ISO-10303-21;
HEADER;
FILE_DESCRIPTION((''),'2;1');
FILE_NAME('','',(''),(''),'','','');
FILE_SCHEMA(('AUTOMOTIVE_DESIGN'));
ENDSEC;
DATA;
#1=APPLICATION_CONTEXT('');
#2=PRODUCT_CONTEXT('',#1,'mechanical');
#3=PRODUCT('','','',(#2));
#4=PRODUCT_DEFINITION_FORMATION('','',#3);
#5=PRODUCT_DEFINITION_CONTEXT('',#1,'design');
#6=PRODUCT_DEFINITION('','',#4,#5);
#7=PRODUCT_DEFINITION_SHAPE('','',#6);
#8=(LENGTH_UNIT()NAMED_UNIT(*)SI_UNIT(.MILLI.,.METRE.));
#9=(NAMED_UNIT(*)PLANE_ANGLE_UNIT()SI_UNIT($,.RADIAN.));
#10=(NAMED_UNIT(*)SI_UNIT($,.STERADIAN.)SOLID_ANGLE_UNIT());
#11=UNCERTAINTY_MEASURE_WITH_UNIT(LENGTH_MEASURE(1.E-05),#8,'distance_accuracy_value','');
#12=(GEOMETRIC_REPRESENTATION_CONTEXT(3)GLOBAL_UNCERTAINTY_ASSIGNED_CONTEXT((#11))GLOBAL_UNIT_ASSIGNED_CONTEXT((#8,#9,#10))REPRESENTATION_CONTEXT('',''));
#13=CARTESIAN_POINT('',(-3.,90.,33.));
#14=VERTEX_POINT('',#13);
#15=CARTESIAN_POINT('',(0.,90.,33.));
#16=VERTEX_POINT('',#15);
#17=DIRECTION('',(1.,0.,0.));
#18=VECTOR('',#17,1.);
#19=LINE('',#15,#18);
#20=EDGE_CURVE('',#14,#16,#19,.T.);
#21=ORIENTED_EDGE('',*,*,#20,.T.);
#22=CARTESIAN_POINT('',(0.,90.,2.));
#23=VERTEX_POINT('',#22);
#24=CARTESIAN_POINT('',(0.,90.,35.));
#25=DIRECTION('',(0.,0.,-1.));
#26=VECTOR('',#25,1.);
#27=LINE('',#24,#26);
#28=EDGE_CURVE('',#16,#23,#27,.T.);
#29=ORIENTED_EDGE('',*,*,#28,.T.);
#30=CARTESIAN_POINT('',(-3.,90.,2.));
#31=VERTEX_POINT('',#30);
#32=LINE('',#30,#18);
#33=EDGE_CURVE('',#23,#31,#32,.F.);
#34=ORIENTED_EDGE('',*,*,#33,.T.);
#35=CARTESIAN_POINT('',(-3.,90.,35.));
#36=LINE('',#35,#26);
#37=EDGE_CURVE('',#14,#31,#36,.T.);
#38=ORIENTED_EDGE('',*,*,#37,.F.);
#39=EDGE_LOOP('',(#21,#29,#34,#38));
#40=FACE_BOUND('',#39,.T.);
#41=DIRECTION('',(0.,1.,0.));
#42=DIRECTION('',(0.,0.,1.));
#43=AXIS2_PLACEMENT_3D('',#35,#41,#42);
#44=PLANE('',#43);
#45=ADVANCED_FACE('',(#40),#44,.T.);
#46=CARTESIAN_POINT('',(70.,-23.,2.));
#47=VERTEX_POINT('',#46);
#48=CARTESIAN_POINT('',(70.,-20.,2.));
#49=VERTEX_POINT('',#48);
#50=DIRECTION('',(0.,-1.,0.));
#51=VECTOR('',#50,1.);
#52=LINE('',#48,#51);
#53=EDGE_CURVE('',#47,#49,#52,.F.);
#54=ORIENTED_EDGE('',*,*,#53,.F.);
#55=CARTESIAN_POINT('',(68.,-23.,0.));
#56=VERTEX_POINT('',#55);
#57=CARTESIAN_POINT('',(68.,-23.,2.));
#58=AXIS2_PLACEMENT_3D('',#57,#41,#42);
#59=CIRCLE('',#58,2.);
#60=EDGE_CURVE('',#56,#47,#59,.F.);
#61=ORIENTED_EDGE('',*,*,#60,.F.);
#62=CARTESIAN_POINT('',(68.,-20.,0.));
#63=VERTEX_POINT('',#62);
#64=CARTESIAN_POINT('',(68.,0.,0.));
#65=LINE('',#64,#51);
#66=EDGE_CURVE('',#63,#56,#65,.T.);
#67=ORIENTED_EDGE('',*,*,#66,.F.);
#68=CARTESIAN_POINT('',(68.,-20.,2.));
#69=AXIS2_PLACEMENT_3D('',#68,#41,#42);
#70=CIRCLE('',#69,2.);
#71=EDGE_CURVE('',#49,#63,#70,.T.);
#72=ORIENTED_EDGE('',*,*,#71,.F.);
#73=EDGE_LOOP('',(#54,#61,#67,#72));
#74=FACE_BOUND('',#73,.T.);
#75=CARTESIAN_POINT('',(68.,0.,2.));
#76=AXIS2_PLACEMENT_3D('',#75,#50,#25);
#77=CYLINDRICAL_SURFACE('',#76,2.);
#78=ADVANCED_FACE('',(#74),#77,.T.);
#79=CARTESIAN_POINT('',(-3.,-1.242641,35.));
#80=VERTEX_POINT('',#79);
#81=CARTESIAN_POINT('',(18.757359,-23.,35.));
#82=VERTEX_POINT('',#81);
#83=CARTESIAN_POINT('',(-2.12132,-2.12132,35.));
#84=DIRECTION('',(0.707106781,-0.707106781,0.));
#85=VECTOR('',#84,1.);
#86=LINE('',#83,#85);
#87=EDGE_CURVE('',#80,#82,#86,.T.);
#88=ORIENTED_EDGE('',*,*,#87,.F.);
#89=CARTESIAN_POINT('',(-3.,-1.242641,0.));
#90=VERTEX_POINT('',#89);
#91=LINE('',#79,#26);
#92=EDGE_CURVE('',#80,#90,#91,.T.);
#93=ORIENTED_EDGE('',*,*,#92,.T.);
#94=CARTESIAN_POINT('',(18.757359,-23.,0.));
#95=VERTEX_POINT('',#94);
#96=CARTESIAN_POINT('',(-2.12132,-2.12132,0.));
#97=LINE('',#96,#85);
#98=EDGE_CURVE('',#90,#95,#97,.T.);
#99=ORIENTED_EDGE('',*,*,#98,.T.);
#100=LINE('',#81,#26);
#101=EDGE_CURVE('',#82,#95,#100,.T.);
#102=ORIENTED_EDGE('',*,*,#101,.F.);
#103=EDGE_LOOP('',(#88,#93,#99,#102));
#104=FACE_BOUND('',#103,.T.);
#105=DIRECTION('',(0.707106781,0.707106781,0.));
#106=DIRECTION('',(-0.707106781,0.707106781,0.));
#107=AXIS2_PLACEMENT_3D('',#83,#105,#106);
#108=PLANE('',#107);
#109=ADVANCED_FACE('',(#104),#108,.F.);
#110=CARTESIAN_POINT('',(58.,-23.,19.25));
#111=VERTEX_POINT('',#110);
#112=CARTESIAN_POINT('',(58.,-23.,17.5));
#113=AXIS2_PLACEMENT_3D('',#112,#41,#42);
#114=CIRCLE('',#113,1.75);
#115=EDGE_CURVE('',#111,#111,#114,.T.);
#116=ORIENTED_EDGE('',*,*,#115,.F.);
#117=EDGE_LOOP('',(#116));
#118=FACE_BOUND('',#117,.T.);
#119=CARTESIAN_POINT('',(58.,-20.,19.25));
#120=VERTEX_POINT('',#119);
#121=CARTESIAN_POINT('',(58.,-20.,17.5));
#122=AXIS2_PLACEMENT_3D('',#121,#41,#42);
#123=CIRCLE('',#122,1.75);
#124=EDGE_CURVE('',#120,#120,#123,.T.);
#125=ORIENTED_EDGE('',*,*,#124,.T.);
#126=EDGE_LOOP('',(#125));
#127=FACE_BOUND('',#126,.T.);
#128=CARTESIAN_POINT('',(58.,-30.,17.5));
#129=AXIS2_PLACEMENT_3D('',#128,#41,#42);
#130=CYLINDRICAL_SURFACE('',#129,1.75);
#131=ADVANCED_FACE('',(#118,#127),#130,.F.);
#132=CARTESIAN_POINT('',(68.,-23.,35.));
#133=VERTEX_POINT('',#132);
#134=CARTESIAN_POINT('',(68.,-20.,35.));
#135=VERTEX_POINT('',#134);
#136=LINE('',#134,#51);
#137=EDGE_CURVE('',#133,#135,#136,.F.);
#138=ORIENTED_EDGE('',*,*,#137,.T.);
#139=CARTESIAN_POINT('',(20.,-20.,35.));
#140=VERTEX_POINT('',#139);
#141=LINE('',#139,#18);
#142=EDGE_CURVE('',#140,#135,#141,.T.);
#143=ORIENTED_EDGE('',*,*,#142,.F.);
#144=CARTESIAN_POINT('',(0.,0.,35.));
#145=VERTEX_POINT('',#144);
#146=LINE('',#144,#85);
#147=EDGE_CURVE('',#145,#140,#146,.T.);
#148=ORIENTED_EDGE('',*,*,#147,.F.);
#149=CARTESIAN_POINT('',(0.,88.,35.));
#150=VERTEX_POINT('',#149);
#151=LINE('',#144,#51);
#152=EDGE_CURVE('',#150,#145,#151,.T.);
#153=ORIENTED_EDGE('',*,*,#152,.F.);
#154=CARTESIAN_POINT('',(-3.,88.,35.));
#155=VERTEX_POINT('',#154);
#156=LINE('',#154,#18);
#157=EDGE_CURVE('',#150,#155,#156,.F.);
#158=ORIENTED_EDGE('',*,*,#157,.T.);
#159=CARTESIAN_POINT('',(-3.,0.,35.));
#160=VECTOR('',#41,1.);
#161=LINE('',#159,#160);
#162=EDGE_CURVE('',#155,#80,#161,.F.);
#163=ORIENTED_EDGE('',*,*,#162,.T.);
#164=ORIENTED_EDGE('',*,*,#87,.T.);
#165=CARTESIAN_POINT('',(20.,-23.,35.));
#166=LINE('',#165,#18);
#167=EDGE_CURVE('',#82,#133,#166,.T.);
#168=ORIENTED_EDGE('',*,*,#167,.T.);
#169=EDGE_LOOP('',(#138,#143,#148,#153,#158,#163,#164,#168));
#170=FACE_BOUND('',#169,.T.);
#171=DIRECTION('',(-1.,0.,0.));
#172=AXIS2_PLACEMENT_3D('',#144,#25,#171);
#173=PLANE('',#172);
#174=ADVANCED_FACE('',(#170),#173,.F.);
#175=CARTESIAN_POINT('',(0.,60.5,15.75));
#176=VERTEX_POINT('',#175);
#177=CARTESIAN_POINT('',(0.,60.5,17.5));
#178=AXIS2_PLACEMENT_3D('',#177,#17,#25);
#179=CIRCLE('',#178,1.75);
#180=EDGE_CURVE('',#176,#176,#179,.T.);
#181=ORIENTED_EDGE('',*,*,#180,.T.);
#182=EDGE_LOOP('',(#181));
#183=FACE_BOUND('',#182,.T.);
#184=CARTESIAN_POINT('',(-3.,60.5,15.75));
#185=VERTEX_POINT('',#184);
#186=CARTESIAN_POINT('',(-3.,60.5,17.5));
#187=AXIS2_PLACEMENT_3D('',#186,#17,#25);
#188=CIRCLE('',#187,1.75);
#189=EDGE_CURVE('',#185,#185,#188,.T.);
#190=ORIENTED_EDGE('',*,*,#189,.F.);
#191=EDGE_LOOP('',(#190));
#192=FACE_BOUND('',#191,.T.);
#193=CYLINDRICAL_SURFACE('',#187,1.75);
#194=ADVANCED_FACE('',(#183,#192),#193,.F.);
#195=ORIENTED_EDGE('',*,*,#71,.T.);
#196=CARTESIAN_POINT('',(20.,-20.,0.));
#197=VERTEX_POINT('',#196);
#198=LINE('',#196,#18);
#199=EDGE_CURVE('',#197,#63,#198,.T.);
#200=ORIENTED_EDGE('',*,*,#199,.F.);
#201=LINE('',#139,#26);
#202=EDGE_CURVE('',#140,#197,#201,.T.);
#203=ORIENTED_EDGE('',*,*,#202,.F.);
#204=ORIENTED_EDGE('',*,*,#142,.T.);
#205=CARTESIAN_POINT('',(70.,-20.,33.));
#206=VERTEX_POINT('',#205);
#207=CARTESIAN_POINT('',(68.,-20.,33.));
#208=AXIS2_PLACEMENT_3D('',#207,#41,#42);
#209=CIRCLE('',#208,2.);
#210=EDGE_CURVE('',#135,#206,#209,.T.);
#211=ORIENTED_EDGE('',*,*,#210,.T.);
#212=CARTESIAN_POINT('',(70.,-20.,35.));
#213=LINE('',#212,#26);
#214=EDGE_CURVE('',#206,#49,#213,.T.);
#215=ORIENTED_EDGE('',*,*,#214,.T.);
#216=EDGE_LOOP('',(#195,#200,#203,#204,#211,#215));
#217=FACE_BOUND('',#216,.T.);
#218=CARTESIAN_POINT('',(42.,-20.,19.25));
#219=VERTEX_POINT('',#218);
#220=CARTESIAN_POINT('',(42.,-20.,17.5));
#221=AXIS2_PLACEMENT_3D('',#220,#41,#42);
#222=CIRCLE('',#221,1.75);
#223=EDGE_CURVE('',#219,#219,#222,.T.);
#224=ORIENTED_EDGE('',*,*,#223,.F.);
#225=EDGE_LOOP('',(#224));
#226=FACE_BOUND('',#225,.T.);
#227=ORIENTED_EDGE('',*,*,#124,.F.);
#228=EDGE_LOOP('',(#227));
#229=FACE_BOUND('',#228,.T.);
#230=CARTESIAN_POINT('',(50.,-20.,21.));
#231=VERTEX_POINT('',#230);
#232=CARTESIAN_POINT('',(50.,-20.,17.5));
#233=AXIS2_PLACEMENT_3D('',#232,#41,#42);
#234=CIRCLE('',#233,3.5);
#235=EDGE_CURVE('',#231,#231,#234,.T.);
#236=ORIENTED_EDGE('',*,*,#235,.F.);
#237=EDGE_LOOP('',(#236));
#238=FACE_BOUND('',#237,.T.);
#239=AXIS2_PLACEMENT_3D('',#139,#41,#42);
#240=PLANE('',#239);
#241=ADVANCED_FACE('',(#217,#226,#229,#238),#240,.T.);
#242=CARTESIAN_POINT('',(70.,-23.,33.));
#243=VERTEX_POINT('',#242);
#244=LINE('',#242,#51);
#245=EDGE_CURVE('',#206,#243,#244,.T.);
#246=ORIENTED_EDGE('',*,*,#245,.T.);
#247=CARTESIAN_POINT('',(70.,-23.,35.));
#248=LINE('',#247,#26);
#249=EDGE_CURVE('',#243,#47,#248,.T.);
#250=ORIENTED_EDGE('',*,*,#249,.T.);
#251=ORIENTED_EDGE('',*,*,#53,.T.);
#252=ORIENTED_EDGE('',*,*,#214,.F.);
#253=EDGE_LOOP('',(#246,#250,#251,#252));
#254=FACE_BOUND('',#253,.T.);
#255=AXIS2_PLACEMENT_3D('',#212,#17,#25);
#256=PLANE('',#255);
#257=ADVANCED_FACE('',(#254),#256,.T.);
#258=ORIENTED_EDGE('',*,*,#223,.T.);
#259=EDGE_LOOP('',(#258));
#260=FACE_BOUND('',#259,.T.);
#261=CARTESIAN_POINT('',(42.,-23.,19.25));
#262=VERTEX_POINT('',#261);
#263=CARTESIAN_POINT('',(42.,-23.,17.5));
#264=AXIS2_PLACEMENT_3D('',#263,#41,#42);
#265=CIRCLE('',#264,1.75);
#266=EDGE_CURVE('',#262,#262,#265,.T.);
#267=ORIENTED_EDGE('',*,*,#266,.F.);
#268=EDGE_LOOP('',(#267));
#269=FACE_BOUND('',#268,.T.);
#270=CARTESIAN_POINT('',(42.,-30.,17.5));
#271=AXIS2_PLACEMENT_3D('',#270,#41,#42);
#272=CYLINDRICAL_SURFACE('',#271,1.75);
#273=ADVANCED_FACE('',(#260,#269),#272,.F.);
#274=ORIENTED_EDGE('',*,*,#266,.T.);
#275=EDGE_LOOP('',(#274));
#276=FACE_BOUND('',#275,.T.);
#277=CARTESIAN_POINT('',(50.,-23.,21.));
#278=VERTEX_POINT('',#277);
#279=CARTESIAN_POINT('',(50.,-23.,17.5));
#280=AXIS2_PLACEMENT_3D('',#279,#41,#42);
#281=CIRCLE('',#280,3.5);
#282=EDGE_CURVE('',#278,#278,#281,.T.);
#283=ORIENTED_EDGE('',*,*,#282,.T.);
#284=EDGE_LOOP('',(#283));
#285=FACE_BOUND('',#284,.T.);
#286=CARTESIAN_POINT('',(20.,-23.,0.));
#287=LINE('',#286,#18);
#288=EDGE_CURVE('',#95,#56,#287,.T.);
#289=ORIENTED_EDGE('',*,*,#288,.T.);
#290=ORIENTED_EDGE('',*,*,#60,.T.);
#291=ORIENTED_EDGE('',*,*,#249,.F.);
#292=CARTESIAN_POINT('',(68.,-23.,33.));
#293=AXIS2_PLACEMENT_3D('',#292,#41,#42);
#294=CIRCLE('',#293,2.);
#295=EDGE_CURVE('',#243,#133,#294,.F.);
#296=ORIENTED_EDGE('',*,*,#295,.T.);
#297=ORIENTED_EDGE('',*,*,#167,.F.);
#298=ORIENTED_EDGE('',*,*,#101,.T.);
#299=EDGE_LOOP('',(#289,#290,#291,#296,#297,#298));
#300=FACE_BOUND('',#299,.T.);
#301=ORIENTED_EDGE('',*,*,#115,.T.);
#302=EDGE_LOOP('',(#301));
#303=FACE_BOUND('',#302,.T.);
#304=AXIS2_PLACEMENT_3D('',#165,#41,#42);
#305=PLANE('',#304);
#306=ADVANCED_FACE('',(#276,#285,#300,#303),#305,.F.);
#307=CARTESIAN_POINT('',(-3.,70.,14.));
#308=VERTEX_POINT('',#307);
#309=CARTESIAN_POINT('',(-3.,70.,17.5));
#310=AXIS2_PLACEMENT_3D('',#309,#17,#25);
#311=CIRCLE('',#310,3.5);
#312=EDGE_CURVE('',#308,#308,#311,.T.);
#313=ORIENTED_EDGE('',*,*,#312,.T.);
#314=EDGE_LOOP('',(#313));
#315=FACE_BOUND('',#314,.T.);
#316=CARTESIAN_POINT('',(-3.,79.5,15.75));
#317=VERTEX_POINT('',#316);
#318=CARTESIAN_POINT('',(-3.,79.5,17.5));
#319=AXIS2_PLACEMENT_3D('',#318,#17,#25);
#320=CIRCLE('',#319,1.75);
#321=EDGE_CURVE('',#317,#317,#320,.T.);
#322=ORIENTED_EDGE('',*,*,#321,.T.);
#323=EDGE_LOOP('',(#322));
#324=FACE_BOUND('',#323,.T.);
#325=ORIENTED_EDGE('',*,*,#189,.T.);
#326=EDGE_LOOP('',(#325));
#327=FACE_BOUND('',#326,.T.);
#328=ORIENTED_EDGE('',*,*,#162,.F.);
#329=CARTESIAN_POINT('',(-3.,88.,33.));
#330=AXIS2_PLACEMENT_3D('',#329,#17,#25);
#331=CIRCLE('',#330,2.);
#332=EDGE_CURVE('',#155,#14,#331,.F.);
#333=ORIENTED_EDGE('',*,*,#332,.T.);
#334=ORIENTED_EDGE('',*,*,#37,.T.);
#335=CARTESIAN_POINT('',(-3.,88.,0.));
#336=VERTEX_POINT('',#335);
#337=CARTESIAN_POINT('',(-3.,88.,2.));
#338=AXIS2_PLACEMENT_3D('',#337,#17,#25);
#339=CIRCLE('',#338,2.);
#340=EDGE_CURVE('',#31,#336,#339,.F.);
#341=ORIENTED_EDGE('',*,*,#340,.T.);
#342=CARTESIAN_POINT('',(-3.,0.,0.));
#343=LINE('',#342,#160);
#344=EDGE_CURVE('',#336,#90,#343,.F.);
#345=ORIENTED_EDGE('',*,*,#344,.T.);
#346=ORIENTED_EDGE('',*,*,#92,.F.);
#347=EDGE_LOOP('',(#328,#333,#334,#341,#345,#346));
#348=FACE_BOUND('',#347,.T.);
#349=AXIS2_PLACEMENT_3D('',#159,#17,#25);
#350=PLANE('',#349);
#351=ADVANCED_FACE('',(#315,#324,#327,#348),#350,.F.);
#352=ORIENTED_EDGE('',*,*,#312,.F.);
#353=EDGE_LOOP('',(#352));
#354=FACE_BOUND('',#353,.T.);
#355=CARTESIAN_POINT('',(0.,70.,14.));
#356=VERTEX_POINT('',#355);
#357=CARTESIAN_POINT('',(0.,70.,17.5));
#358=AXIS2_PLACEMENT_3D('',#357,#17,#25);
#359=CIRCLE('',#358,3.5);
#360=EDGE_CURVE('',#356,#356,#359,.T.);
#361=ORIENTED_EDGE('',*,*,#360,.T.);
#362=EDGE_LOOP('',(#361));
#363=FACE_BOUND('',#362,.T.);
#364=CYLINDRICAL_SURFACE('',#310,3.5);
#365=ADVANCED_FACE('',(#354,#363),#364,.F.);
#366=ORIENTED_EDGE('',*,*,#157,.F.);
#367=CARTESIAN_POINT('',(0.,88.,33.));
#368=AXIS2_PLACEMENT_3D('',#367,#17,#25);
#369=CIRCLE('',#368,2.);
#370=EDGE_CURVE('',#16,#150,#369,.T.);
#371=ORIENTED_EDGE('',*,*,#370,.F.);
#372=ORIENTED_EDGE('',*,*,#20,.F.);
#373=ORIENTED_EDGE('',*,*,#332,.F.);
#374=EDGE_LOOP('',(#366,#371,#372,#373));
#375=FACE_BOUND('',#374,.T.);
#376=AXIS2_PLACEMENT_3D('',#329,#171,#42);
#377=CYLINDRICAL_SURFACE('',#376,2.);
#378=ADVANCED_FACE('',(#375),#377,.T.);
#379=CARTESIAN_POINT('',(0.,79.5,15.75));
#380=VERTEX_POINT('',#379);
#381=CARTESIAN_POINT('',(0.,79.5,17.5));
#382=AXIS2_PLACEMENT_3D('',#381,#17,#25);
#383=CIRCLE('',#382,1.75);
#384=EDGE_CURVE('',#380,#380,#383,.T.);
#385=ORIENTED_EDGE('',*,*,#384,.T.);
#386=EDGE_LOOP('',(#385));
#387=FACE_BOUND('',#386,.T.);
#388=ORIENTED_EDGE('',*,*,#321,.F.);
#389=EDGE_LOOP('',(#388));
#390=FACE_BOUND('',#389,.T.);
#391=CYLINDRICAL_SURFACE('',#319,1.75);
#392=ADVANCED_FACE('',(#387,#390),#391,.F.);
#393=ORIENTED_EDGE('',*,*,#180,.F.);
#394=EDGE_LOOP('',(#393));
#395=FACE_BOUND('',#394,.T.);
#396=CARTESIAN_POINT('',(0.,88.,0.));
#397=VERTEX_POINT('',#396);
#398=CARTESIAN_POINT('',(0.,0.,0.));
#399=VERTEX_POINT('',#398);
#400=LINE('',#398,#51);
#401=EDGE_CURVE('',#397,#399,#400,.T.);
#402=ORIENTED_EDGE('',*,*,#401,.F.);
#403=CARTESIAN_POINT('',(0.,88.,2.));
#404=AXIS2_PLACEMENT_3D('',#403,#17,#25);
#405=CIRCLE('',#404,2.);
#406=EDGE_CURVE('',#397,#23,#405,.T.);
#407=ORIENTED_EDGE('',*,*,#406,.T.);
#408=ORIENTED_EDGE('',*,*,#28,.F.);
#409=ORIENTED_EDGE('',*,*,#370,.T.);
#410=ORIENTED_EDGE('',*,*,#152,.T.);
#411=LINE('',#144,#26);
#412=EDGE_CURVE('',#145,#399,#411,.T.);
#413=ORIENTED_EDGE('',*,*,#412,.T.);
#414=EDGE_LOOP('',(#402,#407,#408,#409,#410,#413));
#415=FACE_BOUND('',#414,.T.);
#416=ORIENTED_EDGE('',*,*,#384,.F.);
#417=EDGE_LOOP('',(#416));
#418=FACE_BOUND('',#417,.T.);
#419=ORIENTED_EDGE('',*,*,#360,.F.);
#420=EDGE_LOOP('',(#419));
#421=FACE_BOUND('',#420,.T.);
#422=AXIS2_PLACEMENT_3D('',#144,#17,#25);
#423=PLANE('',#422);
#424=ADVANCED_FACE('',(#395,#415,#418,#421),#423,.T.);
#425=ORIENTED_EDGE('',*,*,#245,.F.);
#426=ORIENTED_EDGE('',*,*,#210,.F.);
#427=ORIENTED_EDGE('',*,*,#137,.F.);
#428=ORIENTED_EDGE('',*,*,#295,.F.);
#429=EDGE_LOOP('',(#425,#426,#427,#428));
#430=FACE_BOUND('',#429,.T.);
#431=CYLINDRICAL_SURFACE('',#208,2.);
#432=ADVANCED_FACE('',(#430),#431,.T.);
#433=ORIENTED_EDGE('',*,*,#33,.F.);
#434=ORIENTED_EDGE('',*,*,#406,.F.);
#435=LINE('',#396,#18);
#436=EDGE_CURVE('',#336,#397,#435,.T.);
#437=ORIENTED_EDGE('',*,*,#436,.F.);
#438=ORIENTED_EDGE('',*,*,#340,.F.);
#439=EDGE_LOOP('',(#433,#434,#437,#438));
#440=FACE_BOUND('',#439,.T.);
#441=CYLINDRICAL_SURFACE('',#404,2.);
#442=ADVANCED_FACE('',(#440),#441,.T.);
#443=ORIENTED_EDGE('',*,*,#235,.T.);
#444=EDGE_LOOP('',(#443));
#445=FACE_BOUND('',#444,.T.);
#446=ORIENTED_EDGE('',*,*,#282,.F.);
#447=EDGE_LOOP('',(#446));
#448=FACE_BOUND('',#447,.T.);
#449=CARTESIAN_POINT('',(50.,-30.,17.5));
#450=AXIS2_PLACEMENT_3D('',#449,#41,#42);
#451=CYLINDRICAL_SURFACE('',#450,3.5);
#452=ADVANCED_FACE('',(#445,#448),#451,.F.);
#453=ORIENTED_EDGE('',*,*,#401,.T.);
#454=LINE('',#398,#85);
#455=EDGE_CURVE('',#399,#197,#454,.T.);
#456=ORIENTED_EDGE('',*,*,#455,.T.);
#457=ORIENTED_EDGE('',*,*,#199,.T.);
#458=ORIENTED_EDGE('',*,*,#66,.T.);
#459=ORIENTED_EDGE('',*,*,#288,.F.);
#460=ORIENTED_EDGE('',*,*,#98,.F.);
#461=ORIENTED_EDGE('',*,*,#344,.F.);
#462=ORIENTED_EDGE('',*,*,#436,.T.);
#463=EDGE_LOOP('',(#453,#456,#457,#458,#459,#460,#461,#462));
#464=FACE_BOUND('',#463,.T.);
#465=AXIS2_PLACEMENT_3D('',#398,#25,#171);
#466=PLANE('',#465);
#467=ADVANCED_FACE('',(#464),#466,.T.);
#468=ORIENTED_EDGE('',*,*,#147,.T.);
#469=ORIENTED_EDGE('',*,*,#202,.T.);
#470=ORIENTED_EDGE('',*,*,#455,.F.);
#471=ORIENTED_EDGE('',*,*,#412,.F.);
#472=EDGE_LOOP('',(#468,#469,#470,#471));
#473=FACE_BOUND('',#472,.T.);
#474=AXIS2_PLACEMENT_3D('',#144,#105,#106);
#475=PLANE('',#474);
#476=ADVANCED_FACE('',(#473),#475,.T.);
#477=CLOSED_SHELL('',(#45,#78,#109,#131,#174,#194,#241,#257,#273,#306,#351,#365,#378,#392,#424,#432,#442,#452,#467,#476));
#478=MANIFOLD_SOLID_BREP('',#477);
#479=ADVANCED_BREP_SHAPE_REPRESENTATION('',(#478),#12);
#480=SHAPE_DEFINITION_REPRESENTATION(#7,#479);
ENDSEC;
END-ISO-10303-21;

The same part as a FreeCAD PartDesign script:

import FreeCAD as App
import Part
import Sketcher
Q = App.Units.Quantity


def edges_at(feature, points):
    """Names of the edges that pass closest to the given points."""
    edges = feature.Shape.Edges
    near = lambda p: min(range(len(edges)), key=lambda i: edges[i].distToShape(Part.Vertex(*p))[0])
    return sorted({f"Edge{near(p) + 1}" for p in points})


def add_polygon(sketch, points):
    """Adds a closed chain of lines whose ends are joined by coincident constraints."""
    first, n = sketch.GeometryCount, len(points)
    for a, b in zip(points, points[1:] + points[:1]):
        sketch.addGeometry(Part.LineSegment(App.Vector(*a, 0), App.Vector(*b, 0)), False)
    for i in range(n):
        sketch.addConstraint(Sketcher.Constraint("Coincident", first + i, 2, first + (i + 1) % n, 1))

doc = App.newDocument("Part")
body = doc.addObject("PartDesign::Body", "Body")

# Sketch on XY plane
sketch1 = body.newObject("Sketcher::SketchObject", "Sketch")
sketch1.AttachmentSupport = (doc.getObject("XY_Plane"), [""])
sketch1.MapMode = "FlatFace"
add_polygon(sketch1, [(70, -20), (20, -20), (0, 0), (0, 90), (-3, 90), (-3, -1.2), (18.8, -23), (70, -23)])  # lines 0-7
sketch1.addConstraint([
    Sketcher.Constraint("Horizontal", 0),
    Sketcher.Constraint("Vertical", 2),
    Sketcher.Constraint("Horizontal", 3),
    Sketcher.Constraint("Vertical", 4),
    Sketcher.Constraint("Horizontal", 6),
    Sketcher.Constraint("Vertical", 7),
    Sketcher.Constraint("Coincident", 1, 2, -1, 1),
    Sketcher.Constraint("Parallel", 1, 5),
    Sketcher.Constraint("Equal", 3, 7),
    Sketcher.Constraint("DistanceX", 0, 2, 0, 1, 50.0),
    Sketcher.Constraint("DistanceX", 3, 2, 3, 1, 3.0),
    Sketcher.Constraint("DistanceY", 2, 1, 2, 2, 90.0),
    Sketcher.Constraint("Angle", 1, Q("135 deg")),
    Sketcher.Constraint("DistanceX", -1, 1, 0, 2, 20.0),
    Sketcher.Constraint("DistanceX", 6, 1, 6, 2, 51.242641),
])
pad1 = body.newObject("PartDesign::Pad", "Pad")
pad1.Profile = sketch1
pad1.Length = 35

# Sketch on YZ plane
sketch2 = body.newObject("Sketcher::SketchObject", "Sketch001")
sketch2.AttachmentSupport = (doc.getObject("YZ_Plane"), [""])
sketch2.MapMode = "FlatFace"
sketch2.addGeometry([
    Part.Circle(App.Vector(79.5, 17.5, 0), App.Vector(0, 0, 1), 1.8),
    Part.Circle(App.Vector(60.5, 17.5, 0), App.Vector(0, 0, 1), 1.8),
    Part.Circle(App.Vector(70, 17.5, 0), App.Vector(0, 0, 1), 3.5),
], False)
sketch2.addConstraint([
    Sketcher.Constraint("Equal", 0, 1),
    Sketcher.Constraint("Horizontal", 0, 3, 1, 3),
    Sketcher.Constraint("Horizontal", 1, 3, 2, 3),
    Sketcher.Constraint("Diameter", 2, 7.0),
    Sketcher.Constraint("Diameter", 0, 3.5),
    Sketcher.Constraint("DistanceX", -1, 1, 2, 3, 70.0),
    Sketcher.Constraint("DistanceX", 1, 3, 0, 3, 19.0),
    Sketcher.Constraint("DistanceX", -1, 1, 0, 3, 79.5),
    Sketcher.Constraint("DistanceY", -1, 1, 0, 3, 17.5),
])
pocket1 = body.newObject("PartDesign::Pocket", "Pocket")
pocket1.Profile = sketch2
pocket1.Length = 3
doc.recompute()

fillet = body.newObject("PartDesign::Fillet", "Fillet")
fillet.Base = (pocket1, edges_at(pocket1, [(-1.5, 90, 35)]))
fillet.Radius = 2
doc.recompute()

fillet2 = body.newObject("PartDesign::Fillet", "Fillet001")
fillet2.Base = (fillet, edges_at(fillet, [(-1.5, 90, 0)]))
fillet2.Radius = 2
doc.recompute()

fillet3 = body.newObject("PartDesign::Fillet", "Fillet002")
fillet3.Base = (fillet2, edges_at(fillet2, [(70, -21.5, 35)]))
fillet3.Radius = 2
doc.recompute()

fillet4 = body.newObject("PartDesign::Fillet", "Fillet003")
fillet4.Base = (fillet3, edges_at(fillet3, [(70, -21.5, 0)]))
fillet4.Radius = 2

# Sketch on XZ plane
sketch3 = body.newObject("Sketcher::SketchObject", "Sketch002")
sketch3.AttachmentSupport = (doc.getObject("XZ_Plane"), [""])
sketch3.MapMode = "FlatFace"
sketch3.AttachmentOffset = App.Placement(App.Vector(0, 0, 20), App.Rotation())
sketch3.addGeometry([
    Part.Circle(App.Vector(58, 17.5, 0), App.Vector(0, 0, 1), 1.8),
    Part.Circle(App.Vector(42, 17.5, 0), App.Vector(0, 0, 1), 1.8),
    Part.Circle(App.Vector(50, 17.5, 0), App.Vector(0, 0, 1), 3.5),
], False)
sketch3.addConstraint([
    Sketcher.Constraint("Equal", 0, 1),
    Sketcher.Constraint("Horizontal", 0, 3, 1, 3),
    Sketcher.Constraint("Horizontal", 1, 3, 2, 3),
    Sketcher.Constraint("Diameter", 2, 7.0),
    Sketcher.Constraint("Diameter", 0, 3.5),
    Sketcher.Constraint("DistanceX", -1, 1, 0, 3, 58.0),
    Sketcher.Constraint("DistanceX", -1, 1, 1, 3, 42.0),
    Sketcher.Constraint("DistanceX", -1, 1, 2, 3, 50.0),
    Sketcher.Constraint("DistanceY", -1, 1, 0, 3, 17.5),
])
pocket2 = body.newObject("PartDesign::Pocket", "Pocket001")
pocket2.Profile = sketch3
pocket2.Length = 10
pocket2.Reversed = True

doc.recompute()
